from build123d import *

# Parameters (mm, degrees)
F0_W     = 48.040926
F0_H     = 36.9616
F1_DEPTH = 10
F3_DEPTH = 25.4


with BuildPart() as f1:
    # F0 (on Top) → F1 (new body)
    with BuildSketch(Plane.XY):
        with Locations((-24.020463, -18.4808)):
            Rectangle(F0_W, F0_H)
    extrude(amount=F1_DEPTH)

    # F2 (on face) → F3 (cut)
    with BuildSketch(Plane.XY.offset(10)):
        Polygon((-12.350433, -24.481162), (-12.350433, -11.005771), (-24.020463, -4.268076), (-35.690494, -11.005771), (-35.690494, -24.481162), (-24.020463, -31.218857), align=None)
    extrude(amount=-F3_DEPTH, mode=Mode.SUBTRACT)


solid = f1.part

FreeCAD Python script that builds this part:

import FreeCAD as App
import Part
import Sketcher

V = App.Vector
Q = App.Units.Quantity


def add_polygon(sketch, points):
    """Adds a closed chain of lines whose ends are joined by coincident constraints."""
    first, n = sketch.GeometryCount, len(points)
    for a, b in zip(points, points[1:] + points[:1]):
        sketch.addGeometry(Part.LineSegment(App.Vector(*a, 0), App.Vector(*b, 0)), False)
    for i in range(n):
        sketch.addConstraint(Sketcher.Constraint("Coincident", first + i, 2, first + (i + 1) % n, 1))

doc = App.newDocument("Part")
body = doc.addObject("PartDesign::Body", "Body")

# Sketch on XY plane
sketch1 = doc.addObject("Sketcher::SketchObject", "Sketch")
body.addObject(sketch1)
sketch1.AttachmentSupport = (doc.XY_Plane, [""])
sketch1.MapMode = "FlatFace"
add_polygon(sketch1, [(-48.040926, 0), (-48.040926, -36.9616), (0, -36.9616), (0, 0)])  # lines 0-3
sketch1.addConstraint([
    Sketcher.Constraint("Vertical", 0),
    Sketcher.Constraint("Horizontal", 1),
    Sketcher.Constraint("Vertical", 2),
    Sketcher.Constraint("Horizontal", 3),
    Sketcher.Constraint("Coincident", 2, 2, -1, 1),
    Sketcher.Constraint("DistanceY", 0, 2, 0, 1, Q("36.9616 mm")),
    Sketcher.Constraint("DistanceX", 1, 1, 1, 2, Q("48.040926 mm")),
])
pad1 = doc.addObject("PartDesign::Pad", "Pad")
body.addObject(pad1)
pad1.Profile = sketch1
pad1.Length = 10

# Sketch on XY plane
sketch2 = doc.addObject("Sketcher::SketchObject", "Sketch001")
body.addObject(sketch2)
sketch2.AttachmentSupport = (doc.XY_Plane, [""])
sketch2.MapMode = "FlatFace"
sketch2.AttachmentOffset = App.Placement(V(0, 0, 10), App.Rotation())
add_polygon(sketch2, [(-12.350433, -24.481162), (-12.350433, -11.005771), (-24.020463, -4.268076), (-35.690494, -11.005771), (-35.690494, -24.481162), (-24.020463, -31.218857)])  # lines 0-5
sketch2.addConstraint([
    Sketcher.Constraint("Vertical", 0),
    Sketcher.Constraint("Vertical", 3),
    Sketcher.Constraint("Parallel", 1, 4),
    Sketcher.Constraint("Parallel", 2, 5),
    Sketcher.Constraint("Horizontal", 0, 2, 2, 2),
    Sketcher.Constraint("Horizontal", 3, 2, 5, 2),
    Sketcher.Constraint("Vertical", 1, 2, 4, 2),
    Sketcher.Constraint("Angle", 1, Q("150 deg")),
    Sketcher.Constraint("DistanceY", 0, 1, 0, 2, Q("13.475391 mm")),
    Sketcher.Constraint("Distance", 1, Q("13.47539 mm")),
    Sketcher.Constraint("DistanceY", 0, 2, -1, 1, Q("11.005771 mm")),
    Sketcher.Constraint("DistanceX", 0, 2, -1, 1, Q("12.350433 mm")),
])
pocket1 = doc.addObject("PartDesign::Pocket", "Pocket")
body.addObject(pocket1)
pocket1.Profile = sketch2
pocket1.Length = 25.4

doc.recompute()
